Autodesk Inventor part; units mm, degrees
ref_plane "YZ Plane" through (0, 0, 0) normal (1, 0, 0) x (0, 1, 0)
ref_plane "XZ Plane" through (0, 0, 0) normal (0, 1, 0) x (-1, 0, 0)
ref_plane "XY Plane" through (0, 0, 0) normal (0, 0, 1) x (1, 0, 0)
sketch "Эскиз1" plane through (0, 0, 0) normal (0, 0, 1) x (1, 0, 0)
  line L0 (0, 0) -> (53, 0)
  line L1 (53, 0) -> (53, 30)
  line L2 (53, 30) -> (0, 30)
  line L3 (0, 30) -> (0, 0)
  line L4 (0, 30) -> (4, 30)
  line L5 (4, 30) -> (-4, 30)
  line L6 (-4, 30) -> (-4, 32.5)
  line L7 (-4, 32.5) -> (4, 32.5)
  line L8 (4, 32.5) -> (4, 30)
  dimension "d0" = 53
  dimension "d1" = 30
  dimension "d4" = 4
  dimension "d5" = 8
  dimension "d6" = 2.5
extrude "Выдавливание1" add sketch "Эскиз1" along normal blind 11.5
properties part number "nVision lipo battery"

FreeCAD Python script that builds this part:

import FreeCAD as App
import Part
import Sketcher

doc = App.newDocument("Part")
body = doc.addObject("PartDesign::Body", "Body")

sketch1 = body.newObject("Sketcher::SketchObject", "Sketch")
sketch1.AttachmentSupport = (doc.getObject("XY_Plane"), [""])
sketch1.MapMode = "FlatFace"
sketch1.addGeometry([
    Part.LineSegment(App.Vector(0, 30, 0), App.Vector(0, 0, 0)),
    Part.LineSegment(App.Vector(0, 0, 0), App.Vector(53, 0, 0)),
    Part.LineSegment(App.Vector(53, 0, 0), App.Vector(53, 30, 0)),
    Part.LineSegment(App.Vector(53, 30, 0), App.Vector(4, 30, 0)),
    Part.LineSegment(App.Vector(4, 30, 0), App.Vector(4, 32.5, 0)),
    Part.LineSegment(App.Vector(4, 32.5, 0), App.Vector(-4, 32.5, 0)),
    Part.LineSegment(App.Vector(-4, 32.5, 0), App.Vector(-4, 30, 0)),
    Part.LineSegment(App.Vector(-4, 30, 0), App.Vector(0, 30, 0)),
], False)
sketch1.addConstraint([
    Sketcher.Constraint("Coincident", 0, 2, 1, 1),
    Sketcher.Constraint("Coincident", 1, 2, 2, 1),
    Sketcher.Constraint("Coincident", 2, 2, 3, 1),
    Sketcher.Constraint("Coincident", 3, 2, 4, 1),
    Sketcher.Constraint("Coincident", 4, 2, 5, 1),
    Sketcher.Constraint("Coincident", 5, 2, 6, 1),
    Sketcher.Constraint("Coincident", 6, 2, 7, 1),
    Sketcher.Constraint("Coincident", 7, 2, 0, 1),
    Sketcher.Constraint("Vertical", 0),
    Sketcher.Constraint("Horizontal", 1),
    Sketcher.Constraint("Vertical", 2),
    Sketcher.Constraint("Horizontal", 3),
    Sketcher.Constraint("Vertical", 4),
    Sketcher.Constraint("Horizontal", 5),
    Sketcher.Constraint("Vertical", 6),
    Sketcher.Constraint("Horizontal", 7),
    Sketcher.Constraint("Coincident", 0, 2, -1, 1),
    Sketcher.Constraint("Symmetric", 3, 2, 6, 2, -2),
    Sketcher.Constraint("DistanceX", 1, 1, 1, 2, 53.0),
    Sketcher.Constraint("DistanceX", 5, 2, 5, 1, 8.0),
    Sketcher.Constraint("DistanceY", 0, 2, 0, 1, 30.0),
    Sketcher.Constraint("DistanceY", 4, 1, 4, 2, 2.5),
])
pad1 = body.newObject("PartDesign::Pad", "Pad")
pad1.Profile = sketch1
pad1.Length = 11.5

doc.recompute()
